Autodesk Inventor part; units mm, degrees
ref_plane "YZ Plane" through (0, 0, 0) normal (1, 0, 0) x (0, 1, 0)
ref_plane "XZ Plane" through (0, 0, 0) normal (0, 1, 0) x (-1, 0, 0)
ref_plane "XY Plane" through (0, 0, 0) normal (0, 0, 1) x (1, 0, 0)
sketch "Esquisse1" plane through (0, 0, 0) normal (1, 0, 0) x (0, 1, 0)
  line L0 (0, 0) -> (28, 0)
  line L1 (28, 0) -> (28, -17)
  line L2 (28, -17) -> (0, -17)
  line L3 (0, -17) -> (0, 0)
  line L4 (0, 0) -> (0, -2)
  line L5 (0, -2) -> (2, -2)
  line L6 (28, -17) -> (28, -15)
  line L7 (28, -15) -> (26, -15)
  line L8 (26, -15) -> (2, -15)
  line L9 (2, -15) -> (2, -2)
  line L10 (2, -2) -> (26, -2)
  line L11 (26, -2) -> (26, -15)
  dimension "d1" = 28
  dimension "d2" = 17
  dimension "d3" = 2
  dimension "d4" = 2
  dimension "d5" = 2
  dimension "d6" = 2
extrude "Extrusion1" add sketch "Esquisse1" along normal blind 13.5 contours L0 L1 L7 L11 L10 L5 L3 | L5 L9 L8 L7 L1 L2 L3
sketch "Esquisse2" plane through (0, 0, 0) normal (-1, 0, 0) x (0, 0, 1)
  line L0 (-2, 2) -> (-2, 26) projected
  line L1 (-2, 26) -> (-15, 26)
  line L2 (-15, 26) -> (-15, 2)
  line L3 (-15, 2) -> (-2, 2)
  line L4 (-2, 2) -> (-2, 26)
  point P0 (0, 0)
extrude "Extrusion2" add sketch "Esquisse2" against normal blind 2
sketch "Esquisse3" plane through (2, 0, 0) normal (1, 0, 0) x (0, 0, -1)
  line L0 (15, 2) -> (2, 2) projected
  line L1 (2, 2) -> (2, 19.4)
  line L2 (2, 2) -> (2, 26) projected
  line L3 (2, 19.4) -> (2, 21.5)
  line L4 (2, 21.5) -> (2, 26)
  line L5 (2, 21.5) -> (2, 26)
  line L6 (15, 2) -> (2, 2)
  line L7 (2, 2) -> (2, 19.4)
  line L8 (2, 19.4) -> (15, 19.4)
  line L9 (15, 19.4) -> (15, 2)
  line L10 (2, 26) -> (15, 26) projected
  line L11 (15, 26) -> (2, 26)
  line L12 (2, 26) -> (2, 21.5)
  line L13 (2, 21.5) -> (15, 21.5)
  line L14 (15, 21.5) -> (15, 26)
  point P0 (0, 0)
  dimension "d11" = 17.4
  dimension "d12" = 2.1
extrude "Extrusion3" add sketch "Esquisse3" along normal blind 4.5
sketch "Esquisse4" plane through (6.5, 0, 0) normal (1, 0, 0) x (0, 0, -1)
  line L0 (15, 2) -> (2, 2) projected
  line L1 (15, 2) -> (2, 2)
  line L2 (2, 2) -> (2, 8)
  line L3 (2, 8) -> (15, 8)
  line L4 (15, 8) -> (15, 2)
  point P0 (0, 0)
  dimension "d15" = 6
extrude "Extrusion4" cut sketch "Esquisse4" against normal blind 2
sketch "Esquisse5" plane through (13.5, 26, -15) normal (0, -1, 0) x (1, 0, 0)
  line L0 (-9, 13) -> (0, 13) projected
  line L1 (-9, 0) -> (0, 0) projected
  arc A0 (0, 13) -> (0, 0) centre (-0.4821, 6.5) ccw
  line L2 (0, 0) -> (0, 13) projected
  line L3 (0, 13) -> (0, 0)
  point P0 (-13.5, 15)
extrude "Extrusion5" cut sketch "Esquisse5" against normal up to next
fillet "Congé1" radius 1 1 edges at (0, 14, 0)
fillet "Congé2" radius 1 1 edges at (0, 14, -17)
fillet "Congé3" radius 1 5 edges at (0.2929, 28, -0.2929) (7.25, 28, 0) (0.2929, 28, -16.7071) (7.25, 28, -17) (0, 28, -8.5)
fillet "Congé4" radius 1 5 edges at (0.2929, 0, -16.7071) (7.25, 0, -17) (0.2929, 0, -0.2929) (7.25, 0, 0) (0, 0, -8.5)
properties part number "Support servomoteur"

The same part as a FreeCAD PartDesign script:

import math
import FreeCAD as App
import Part
import Sketcher


def edges_at(feature, points):
    """Names of the edges that pass closest to the given points."""
    edges = feature.Shape.Edges
    near = lambda p: min(range(len(edges)), key=lambda i: edges[i].distToShape(Part.Vertex(*p))[0])
    return sorted({f"Edge{near(p) + 1}" for p in points})

doc = App.newDocument("Part")
body = doc.addObject("PartDesign::Body", "Body")

# Sketch on YZ plane
sketch1 = body.newObject("Sketcher::SketchObject", "Sketch")
sketch1.AttachmentSupport = (doc.getObject("YZ_Plane"), [""])
sketch1.MapMode = "FlatFace"
sketch1.addGeometry(Part.LineSegment(App.Vector(28, 0, 0), App.Vector(0, 0, 0)), False)
sketch1.addGeometry(Part.LineSegment(App.Vector(0, 0, 0), App.Vector(0, -17, 0)), False)
sketch1.addGeometry(Part.LineSegment(App.Vector(0, -17, 0), App.Vector(28, -17, 0)), False)
sketch1.addGeometry(Part.LineSegment(App.Vector(28, -17, 0), App.Vector(28, 0, 0)), False)
sketch1.addGeometry(Part.LineSegment(App.Vector(26, -2, 0), App.Vector(26, -15, 0)), False)
sketch1.addGeometry(Part.LineSegment(App.Vector(26, -15, 0), App.Vector(2, -15, 0)), False)
sketch1.addGeometry(Part.LineSegment(App.Vector(2, -15, 0), App.Vector(2, -2, 0)), False)
sketch1.addGeometry(Part.LineSegment(App.Vector(2, -2, 0), App.Vector(26, -2, 0)), False)
sketch1.addConstraint(Sketcher.Constraint("Coincident", 0, 2, 1, 1))
sketch1.addConstraint(Sketcher.Constraint("Coincident", 1, 2, 2, 1))
sketch1.addConstraint(Sketcher.Constraint("Coincident", 2, 2, 3, 1))
sketch1.addConstraint(Sketcher.Constraint("Coincident", 3, 2, 0, 1))
sketch1.addConstraint(Sketcher.Constraint("Coincident", 4, 2, 5, 1))
sketch1.addConstraint(Sketcher.Constraint("Coincident", 5, 2, 6, 1))
sketch1.addConstraint(Sketcher.Constraint("Coincident", 6, 2, 7, 1))
sketch1.addConstraint(Sketcher.Constraint("Coincident", 7, 2, 4, 1))
sketch1.addConstraint(Sketcher.Constraint("Horizontal", 0))
sketch1.addConstraint(Sketcher.Constraint("Vertical", 1))
sketch1.addConstraint(Sketcher.Constraint("Horizontal", 2))
sketch1.addConstraint(Sketcher.Constraint("Vertical", 3))
sketch1.addConstraint(Sketcher.Constraint("Vertical", 4))
sketch1.addConstraint(Sketcher.Constraint("Horizontal", 5))
sketch1.addConstraint(Sketcher.Constraint("Vertical", 6))
sketch1.addConstraint(Sketcher.Constraint("Horizontal", 7))
sketch1.addConstraint(Sketcher.Constraint("Coincident", 0, 2, -1, 1))
sketch1.addConstraint(Sketcher.Constraint("DistanceX", 0, 2, 0, 1, 28.0))
sketch1.addConstraint(Sketcher.Constraint("DistanceY", 1, 2, 1, 1, 17.0))
sketch1.addConstraint(Sketcher.Constraint("DistanceX", -1, 1, 5, 2, 2.0))
sketch1.addConstraint(Sketcher.Constraint("DistanceY", 6, 2, -1, 1, 2.0))
sketch1.addConstraint(Sketcher.Constraint("DistanceX", 4, 2, 2, 2, 2.0))
sketch1.addConstraint(Sketcher.Constraint("DistanceY", 2, 2, 4, 2, 2.0))
pad1 = body.newObject("PartDesign::Pad", "Pad")
pad1.Profile = sketch1
pad1.Length = 13.5

# Sketch on YZ plane
sketch2 = body.newObject("Sketcher::SketchObject", "Sketch001")
sketch2.AttachmentSupport = (doc.getObject("YZ_Plane"), [""])
sketch2.MapMode = "FlatFace"
sketch2.addGeometry(Part.LineSegment(App.Vector(2, -15, 0), App.Vector(2, -2, 0)), False)
sketch2.addGeometry(Part.LineSegment(App.Vector(2, -2, 0), App.Vector(26, -2, 0)), False)
sketch2.addGeometry(Part.LineSegment(App.Vector(26, -2, 0), App.Vector(26, -15, 0)), False)
sketch2.addGeometry(Part.LineSegment(App.Vector(26, -15, 0), App.Vector(2, -15, 0)), False)
sketch2.addConstraint(Sketcher.Constraint("Coincident", 0, 2, 1, 1))
sketch2.addConstraint(Sketcher.Constraint("Coincident", 1, 2, 2, 1))
sketch2.addConstraint(Sketcher.Constraint("Coincident", 2, 2, 3, 1))
sketch2.addConstraint(Sketcher.Constraint("Coincident", 3, 2, 0, 1))
sketch2.addConstraint(Sketcher.Constraint("Vertical", 0))
sketch2.addConstraint(Sketcher.Constraint("Horizontal", 1))
sketch2.addConstraint(Sketcher.Constraint("Vertical", 2))
sketch2.addConstraint(Sketcher.Constraint("Horizontal", 3))
sketch2.addConstraint(Sketcher.Constraint("DistanceX", 1, 1, 1, 2, 24.0))
sketch2.addConstraint(Sketcher.Constraint("DistanceY", 0, 1, 0, 2, 13.0))
sketch2.addConstraint(Sketcher.Constraint("DistanceX", -1, 1, 0, 2, 2.0))
sketch2.addConstraint(Sketcher.Constraint("DistanceY", 0, 2, -1, 1, 2.0))
pad2 = body.newObject("PartDesign::Pad", "Pad001")
pad2.Profile = sketch2
pad2.Length = 2

# Sketch on YZ plane
sketch3 = body.newObject("Sketcher::SketchObject", "Sketch002")
sketch3.AttachmentSupport = (doc.getObject("YZ_Plane"), [""])
sketch3.MapMode = "FlatFace"
sketch3.AttachmentOffset = App.Placement(App.Vector(0, 0, 2), App.Rotation())
sketch3.addGeometry(Part.LineSegment(App.Vector(26, -2, 0), App.Vector(21.5, -2, 0)), False)
sketch3.addGeometry(Part.LineSegment(App.Vector(21.5, -2, 0), App.Vector(21.5, -15, 0)), False)
sketch3.addGeometry(Part.LineSegment(App.Vector(21.5, -15, 0), App.Vector(26, -15, 0)), False)
sketch3.addGeometry(Part.LineSegment(App.Vector(26, -15, 0), App.Vector(26, -2, 0)), False)
sketch3.addGeometry(Part.LineSegment(App.Vector(2, -2, 0), App.Vector(2, -15, 0)), False)
sketch3.addGeometry(Part.LineSegment(App.Vector(2, -15, 0), App.Vector(19.4, -15, 0)), False)
sketch3.addGeometry(Part.LineSegment(App.Vector(19.4, -15, 0), App.Vector(19.4, -2, 0)), False)
sketch3.addGeometry(Part.LineSegment(App.Vector(19.4, -2, 0), App.Vector(2, -2, 0)), False)
sketch3.addConstraint(Sketcher.Constraint("Coincident", 0, 2, 1, 1))
sketch3.addConstraint(Sketcher.Constraint("Coincident", 1, 2, 2, 1))
sketch3.addConstraint(Sketcher.Constraint("Coincident", 2, 2, 3, 1))
sketch3.addConstraint(Sketcher.Constraint("Coincident", 3, 2, 0, 1))
sketch3.addConstraint(Sketcher.Constraint("Coincident", 4, 2, 5, 1))
sketch3.addConstraint(Sketcher.Constraint("Coincident", 5, 2, 6, 1))
sketch3.addConstraint(Sketcher.Constraint("Coincident", 6, 2, 7, 1))
sketch3.addConstraint(Sketcher.Constraint("Coincident", 7, 2, 4, 1))
sketch3.addConstraint(Sketcher.Constraint("Horizontal", 0))
sketch3.addConstraint(Sketcher.Constraint("Vertical", 1))
sketch3.addConstraint(Sketcher.Constraint("Horizontal", 2))
sketch3.addConstraint(Sketcher.Constraint("Vertical", 3))
sketch3.addConstraint(Sketcher.Constraint("Vertical", 4))
sketch3.addConstraint(Sketcher.Constraint("Horizontal", 5))
sketch3.addConstraint(Sketcher.Constraint("Vertical", 6))
sketch3.addConstraint(Sketcher.Constraint("Horizontal", 7))
sketch3.addConstraint(Sketcher.Constraint("Horizontal", 2, 2, 4, 2))
sketch3.addConstraint(Sketcher.Constraint("Horizontal", 3, 2, 6, 2))
sketch3.addConstraint(Sketcher.Constraint("DistanceX", 5, 1, 5, 2, 17.4))
sketch3.addConstraint(Sketcher.Constraint("DistanceX", 5, 2, 1, 2, 2.1))
sketch3.addConstraint(Sketcher.Constraint("DistanceY", 1, 2, 1, 1, 13.0))
sketch3.addConstraint(Sketcher.Constraint("DistanceX", 0, 2, 0, 1, 4.5))
sketch3.addConstraint(Sketcher.Constraint("DistanceY", 0, 2, -1, 1, 2.0))
sketch3.addConstraint(Sketcher.Constraint("DistanceX", -1, 1, 2, 2, 26.0))
pad3 = body.newObject("PartDesign::Pad", "Pad002")
pad3.Profile = sketch3
pad3.Length = 4.5

# Sketch on YZ plane
sketch4 = body.newObject("Sketcher::SketchObject", "Sketch003")
sketch4.AttachmentSupport = (doc.getObject("YZ_Plane"), [""])
sketch4.MapMode = "FlatFace"
sketch4.AttachmentOffset = App.Placement(App.Vector(0, 0, 6.5), App.Rotation())
sketch4.addGeometry(Part.LineSegment(App.Vector(2, -2, 0), App.Vector(2, -15, 0)), False)
sketch4.addGeometry(Part.LineSegment(App.Vector(2, -15, 0), App.Vector(8, -15, 0)), False)
sketch4.addGeometry(Part.LineSegment(App.Vector(8, -15, 0), App.Vector(8, -2, 0)), False)
sketch4.addGeometry(Part.LineSegment(App.Vector(8, -2, 0), App.Vector(2, -2, 0)), False)
sketch4.addConstraint(Sketcher.Constraint("Coincident", 0, 2, 1, 1))
sketch4.addConstraint(Sketcher.Constraint("Coincident", 1, 2, 2, 1))
sketch4.addConstraint(Sketcher.Constraint("Coincident", 2, 2, 3, 1))
sketch4.addConstraint(Sketcher.Constraint("Coincident", 3, 2, 0, 1))
sketch4.addConstraint(Sketcher.Constraint("Vertical", 0))
sketch4.addConstraint(Sketcher.Constraint("Horizontal", 1))
sketch4.addConstraint(Sketcher.Constraint("Vertical", 2))
sketch4.addConstraint(Sketcher.Constraint("Horizontal", 3))
sketch4.addConstraint(Sketcher.Constraint("DistanceX", 1, 1, 1, 2, 6.0))
sketch4.addConstraint(Sketcher.Constraint("DistanceY", 0, 2, 0, 1, 13.0))
sketch4.addConstraint(Sketcher.Constraint("DistanceX", -1, 1, 0, 2, 2.0))
sketch4.addConstraint(Sketcher.Constraint("DistanceY", 0, 2, -1, 1, 15.0))
pocket1 = body.newObject("PartDesign::Pocket", "Pocket")
pocket1.Profile = sketch4
pocket1.Length = 2

# Sketch on XZ plane
sketch5 = body.newObject("Sketcher::SketchObject", "Sketch004")
sketch5.AttachmentSupport = (doc.getObject("XZ_Plane"), [""])
sketch5.MapMode = "FlatFace"
sketch5.AttachmentOffset = App.Placement(App.Vector(0, 0, -26), App.Rotation())
sketch5.addGeometry(Part.ArcOfCircle(Part.Circle(App.Vector(13, -8, 0), App.Vector(0, 0, 1), 7), math.radians(86), math.radians(274)), False)
sketch5.addGeometry(Part.LineSegment(App.Vector(14, -15, 0), App.Vector(14, -2, 0)), False)
sketch5.addConstraint(Sketcher.Constraint("Coincident", 0, 1, 1, 2))
sketch5.addConstraint(Sketcher.Constraint("Coincident", 1, 1, 0, 2))
sketch5.addConstraint(Sketcher.Constraint("Vertical", 1))
sketch5.addConstraint(Sketcher.Constraint("DistanceY", 1, 1, 1, 2, 13.0))
sketch5.addConstraint(Sketcher.Constraint("DistanceY", 0, 1, -1, 1, 2.0))
sketch5.addConstraint(Sketcher.Constraint("DistanceX", -1, 1, 0, 1, 13.5))
sketch5.addConstraint(Sketcher.Constraint("Radius", 0, 6.5179))
pocket2 = body.newObject("PartDesign::Pocket", "Pocket001")
pocket2.Profile = sketch5
pocket2.Type = "UpToFirst"
doc.recompute()

fillet = body.newObject("PartDesign::Fillet", "Fillet")
fillet.Base = (pocket2, edges_at(pocket2, [(0, 14, 0)]))
fillet.Radius = 1
doc.recompute()

fillet2 = body.newObject("PartDesign::Fillet", "Fillet001")
fillet2.Base = (fillet, edges_at(fillet, [(0, 14, -17)]))
fillet2.Radius = 1
doc.recompute()

fillet3 = body.newObject("PartDesign::Fillet", "Fillet002")
fillet3.Base = (fillet2, edges_at(fillet2, [
    (0.293, 28, -0.293),
    (7.25, 28, 0),
    (0.293, 28, -16.707),
    (7.25, 28, -17),
    (0, 28, -8.5),
]))
fillet3.Radius = 1
doc.recompute()

fillet4 = body.newObject("PartDesign::Fillet", "Fillet003")
fillet4.Base = (fillet3, edges_at(fillet3, [
    (0.293, 0, -16.707),
    (7.25, 0, -17),
    (0.293, 0, -0.293),
    (7.25, 0, 0),
    (0, 0, -8.5),
]))
fillet4.Radius = 1

doc.recompute()
